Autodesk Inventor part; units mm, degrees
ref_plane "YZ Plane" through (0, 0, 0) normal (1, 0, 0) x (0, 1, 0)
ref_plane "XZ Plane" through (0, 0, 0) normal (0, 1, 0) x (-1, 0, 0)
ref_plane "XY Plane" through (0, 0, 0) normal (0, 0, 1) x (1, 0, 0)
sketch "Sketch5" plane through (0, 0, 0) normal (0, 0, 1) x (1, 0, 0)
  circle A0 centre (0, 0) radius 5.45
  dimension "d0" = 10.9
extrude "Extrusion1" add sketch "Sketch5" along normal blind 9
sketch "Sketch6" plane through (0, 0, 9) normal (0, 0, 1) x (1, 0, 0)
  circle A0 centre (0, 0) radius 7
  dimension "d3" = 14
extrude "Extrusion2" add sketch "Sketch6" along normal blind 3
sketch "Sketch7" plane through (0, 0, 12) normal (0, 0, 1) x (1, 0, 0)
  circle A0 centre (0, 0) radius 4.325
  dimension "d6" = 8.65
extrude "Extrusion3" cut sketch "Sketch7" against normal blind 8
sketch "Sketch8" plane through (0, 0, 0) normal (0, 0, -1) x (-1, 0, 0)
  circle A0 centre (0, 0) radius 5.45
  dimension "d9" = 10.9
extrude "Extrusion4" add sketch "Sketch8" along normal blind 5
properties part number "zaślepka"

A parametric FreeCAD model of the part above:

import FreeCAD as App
import Part
import Sketcher

V = App.Vector
Q = App.Units.Quantity

doc = App.newDocument("Part")
params = doc.addObject("Spreadsheet::Sheet", "Params")
for row, (alias, value) in enumerate([
    ("sketch1_diameter", "10.9 mm"),
    ("pad1_length", "9 mm"),
    ("sketch2_diameter", "14 mm"),
    ("pad2_length", "3 mm"),
    ("sketch3_diameter", "8.65 mm"),
    ("pocket1_length", "8 mm"),
    ("sketch4_diameter", "10.9 mm"),
    ("pad3_length", "5 mm"),
], start=1):
    params.set(f"A{row}", alias)
    params.set(f"B{row}", "=" + value)
    params.setAlias(f"B{row}", alias)

body = doc.addObject("PartDesign::Body", "Body")

# Sketch on XY plane
sketch1 = doc.addObject("Sketcher::SketchObject", "Sketch")
body.addObject(sketch1)
sketch1.AttachmentSupport = (doc.XY_Plane, [""])
sketch1.MapMode = "FlatFace"
sketch1.addGeometry(Part.Circle(V(0, 0, 0), V(0, 0, 1), 5), False)
sketch1.addConstraint([
    Sketcher.Constraint("Coincident", 0, 3, -1, 1),
    Sketcher.Constraint("Diameter", 0, Q("10.9 mm")),
])
sketch1.setExpression("Constraints[1]", "Params.sketch1_diameter")
pad1 = doc.addObject("PartDesign::Pad", "Pad")
body.addObject(pad1)
pad1.Profile = sketch1
pad1.setExpression("Length", "Params.pad1_length")

# Sketch on XY plane
sketch2 = doc.addObject("Sketcher::SketchObject", "Sketch001")
body.addObject(sketch2)
sketch2.AttachmentSupport = (doc.XY_Plane, [""])
sketch2.MapMode = "FlatFace"
sketch2.AttachmentOffset = App.Placement(V(0, 0, 9), App.Rotation())
sketch2.addGeometry(Part.Circle(V(0, 0, 0), V(0, 0, 1), 7), False)
sketch2.addConstraint([
    Sketcher.Constraint("Coincident", 0, 3, -1, 1),
    Sketcher.Constraint("Diameter", 0, Q("14 mm")),
])
sketch2.setExpression("Constraints[1]", "Params.sketch2_diameter")
pad2 = doc.addObject("PartDesign::Pad", "Pad001")
body.addObject(pad2)
pad2.Profile = sketch2
pad2.setExpression("Length", "Params.pad2_length")

# Sketch on XY plane
sketch3 = doc.addObject("Sketcher::SketchObject", "Sketch002")
body.addObject(sketch3)
sketch3.AttachmentSupport = (doc.XY_Plane, [""])
sketch3.MapMode = "FlatFace"
sketch3.AttachmentOffset = App.Placement(V(0, 0, 12), App.Rotation())
sketch3.addGeometry(Part.Circle(V(0, 0, 0), V(0, 0, 1), 4.3), False)
sketch3.addConstraint([
    Sketcher.Constraint("Coincident", 0, 3, -1, 1),
    Sketcher.Constraint("Diameter", 0, Q("8.65 mm")),
])
sketch3.setExpression("Constraints[1]", "Params.sketch3_diameter")
pocket1 = doc.addObject("PartDesign::Pocket", "Pocket")
body.addObject(pocket1)
pocket1.Profile = sketch3
pocket1.setExpression("Length", "Params.pocket1_length")

# Sketch on XY plane
sketch4 = doc.addObject("Sketcher::SketchObject", "Sketch003")
body.addObject(sketch4)
sketch4.AttachmentSupport = (doc.XY_Plane, [""])
sketch4.MapMode = "FlatFace"
sketch4.addGeometry(Part.Circle(V(0, 0, 0), V(0, 0, 1), 5), False)
sketch4.addConstraint([
    Sketcher.Constraint("Coincident", 0, 3, -1, 1),
    Sketcher.Constraint("Diameter", 0, Q("10.9 mm")),
])
sketch4.setExpression("Constraints[1]", "Params.sketch4_diameter")
pad3 = doc.addObject("PartDesign::Pad", "Pad002")
body.addObject(pad3)
pad3.Profile = sketch4
pad3.setExpression("Length", "Params.pad3_length")
pad3.Reversed = True

doc.recompute()
